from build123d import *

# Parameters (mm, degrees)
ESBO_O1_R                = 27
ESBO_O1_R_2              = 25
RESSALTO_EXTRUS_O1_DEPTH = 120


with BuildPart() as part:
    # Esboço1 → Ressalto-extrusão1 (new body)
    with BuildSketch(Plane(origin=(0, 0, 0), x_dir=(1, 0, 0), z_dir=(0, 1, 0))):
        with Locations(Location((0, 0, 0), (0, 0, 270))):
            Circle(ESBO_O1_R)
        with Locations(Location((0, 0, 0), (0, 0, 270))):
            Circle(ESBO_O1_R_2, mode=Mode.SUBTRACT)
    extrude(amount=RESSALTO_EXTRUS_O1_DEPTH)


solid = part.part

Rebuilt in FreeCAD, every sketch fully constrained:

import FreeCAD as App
import Part
import Sketcher
from FreeCAD import Vector
Q = App.Units.Quantity

doc = App.newDocument("Part")
body = doc.addObject("PartDesign::Body", "Body")

# Sketch on XZ plane
sketch1 = doc.addObject("Sketcher::SketchObject", "Sketch")
body.addObject(sketch1)
sketch1.AttachmentSupport = (doc.XZ_Plane, [""])
sketch1.MapMode = "FlatFace"
sketch1.addGeometry([
    Part.Circle(Vector(0, 0, 0), Vector(0, 0, 1), 27),
    Part.Circle(Vector(0, 0, 0), Vector(0, 0, 1), 25),
], False)
sketch1.addConstraint([
    Sketcher.Constraint("Coincident", 0, 3, -1, 1),
    Sketcher.Constraint("Coincident", 1, 3, -1, 1),
    Sketcher.Constraint("Diameter", 0, Q("54 mm")),
    Sketcher.Constraint("Diameter", 1, Q("50 mm")),
])
pad1 = doc.addObject("PartDesign::Pad", "Pad")
body.addObject(pad1)
pad1.Profile = sketch1
pad1.Length = 120
pad1.Reversed = True

doc.recompute()
